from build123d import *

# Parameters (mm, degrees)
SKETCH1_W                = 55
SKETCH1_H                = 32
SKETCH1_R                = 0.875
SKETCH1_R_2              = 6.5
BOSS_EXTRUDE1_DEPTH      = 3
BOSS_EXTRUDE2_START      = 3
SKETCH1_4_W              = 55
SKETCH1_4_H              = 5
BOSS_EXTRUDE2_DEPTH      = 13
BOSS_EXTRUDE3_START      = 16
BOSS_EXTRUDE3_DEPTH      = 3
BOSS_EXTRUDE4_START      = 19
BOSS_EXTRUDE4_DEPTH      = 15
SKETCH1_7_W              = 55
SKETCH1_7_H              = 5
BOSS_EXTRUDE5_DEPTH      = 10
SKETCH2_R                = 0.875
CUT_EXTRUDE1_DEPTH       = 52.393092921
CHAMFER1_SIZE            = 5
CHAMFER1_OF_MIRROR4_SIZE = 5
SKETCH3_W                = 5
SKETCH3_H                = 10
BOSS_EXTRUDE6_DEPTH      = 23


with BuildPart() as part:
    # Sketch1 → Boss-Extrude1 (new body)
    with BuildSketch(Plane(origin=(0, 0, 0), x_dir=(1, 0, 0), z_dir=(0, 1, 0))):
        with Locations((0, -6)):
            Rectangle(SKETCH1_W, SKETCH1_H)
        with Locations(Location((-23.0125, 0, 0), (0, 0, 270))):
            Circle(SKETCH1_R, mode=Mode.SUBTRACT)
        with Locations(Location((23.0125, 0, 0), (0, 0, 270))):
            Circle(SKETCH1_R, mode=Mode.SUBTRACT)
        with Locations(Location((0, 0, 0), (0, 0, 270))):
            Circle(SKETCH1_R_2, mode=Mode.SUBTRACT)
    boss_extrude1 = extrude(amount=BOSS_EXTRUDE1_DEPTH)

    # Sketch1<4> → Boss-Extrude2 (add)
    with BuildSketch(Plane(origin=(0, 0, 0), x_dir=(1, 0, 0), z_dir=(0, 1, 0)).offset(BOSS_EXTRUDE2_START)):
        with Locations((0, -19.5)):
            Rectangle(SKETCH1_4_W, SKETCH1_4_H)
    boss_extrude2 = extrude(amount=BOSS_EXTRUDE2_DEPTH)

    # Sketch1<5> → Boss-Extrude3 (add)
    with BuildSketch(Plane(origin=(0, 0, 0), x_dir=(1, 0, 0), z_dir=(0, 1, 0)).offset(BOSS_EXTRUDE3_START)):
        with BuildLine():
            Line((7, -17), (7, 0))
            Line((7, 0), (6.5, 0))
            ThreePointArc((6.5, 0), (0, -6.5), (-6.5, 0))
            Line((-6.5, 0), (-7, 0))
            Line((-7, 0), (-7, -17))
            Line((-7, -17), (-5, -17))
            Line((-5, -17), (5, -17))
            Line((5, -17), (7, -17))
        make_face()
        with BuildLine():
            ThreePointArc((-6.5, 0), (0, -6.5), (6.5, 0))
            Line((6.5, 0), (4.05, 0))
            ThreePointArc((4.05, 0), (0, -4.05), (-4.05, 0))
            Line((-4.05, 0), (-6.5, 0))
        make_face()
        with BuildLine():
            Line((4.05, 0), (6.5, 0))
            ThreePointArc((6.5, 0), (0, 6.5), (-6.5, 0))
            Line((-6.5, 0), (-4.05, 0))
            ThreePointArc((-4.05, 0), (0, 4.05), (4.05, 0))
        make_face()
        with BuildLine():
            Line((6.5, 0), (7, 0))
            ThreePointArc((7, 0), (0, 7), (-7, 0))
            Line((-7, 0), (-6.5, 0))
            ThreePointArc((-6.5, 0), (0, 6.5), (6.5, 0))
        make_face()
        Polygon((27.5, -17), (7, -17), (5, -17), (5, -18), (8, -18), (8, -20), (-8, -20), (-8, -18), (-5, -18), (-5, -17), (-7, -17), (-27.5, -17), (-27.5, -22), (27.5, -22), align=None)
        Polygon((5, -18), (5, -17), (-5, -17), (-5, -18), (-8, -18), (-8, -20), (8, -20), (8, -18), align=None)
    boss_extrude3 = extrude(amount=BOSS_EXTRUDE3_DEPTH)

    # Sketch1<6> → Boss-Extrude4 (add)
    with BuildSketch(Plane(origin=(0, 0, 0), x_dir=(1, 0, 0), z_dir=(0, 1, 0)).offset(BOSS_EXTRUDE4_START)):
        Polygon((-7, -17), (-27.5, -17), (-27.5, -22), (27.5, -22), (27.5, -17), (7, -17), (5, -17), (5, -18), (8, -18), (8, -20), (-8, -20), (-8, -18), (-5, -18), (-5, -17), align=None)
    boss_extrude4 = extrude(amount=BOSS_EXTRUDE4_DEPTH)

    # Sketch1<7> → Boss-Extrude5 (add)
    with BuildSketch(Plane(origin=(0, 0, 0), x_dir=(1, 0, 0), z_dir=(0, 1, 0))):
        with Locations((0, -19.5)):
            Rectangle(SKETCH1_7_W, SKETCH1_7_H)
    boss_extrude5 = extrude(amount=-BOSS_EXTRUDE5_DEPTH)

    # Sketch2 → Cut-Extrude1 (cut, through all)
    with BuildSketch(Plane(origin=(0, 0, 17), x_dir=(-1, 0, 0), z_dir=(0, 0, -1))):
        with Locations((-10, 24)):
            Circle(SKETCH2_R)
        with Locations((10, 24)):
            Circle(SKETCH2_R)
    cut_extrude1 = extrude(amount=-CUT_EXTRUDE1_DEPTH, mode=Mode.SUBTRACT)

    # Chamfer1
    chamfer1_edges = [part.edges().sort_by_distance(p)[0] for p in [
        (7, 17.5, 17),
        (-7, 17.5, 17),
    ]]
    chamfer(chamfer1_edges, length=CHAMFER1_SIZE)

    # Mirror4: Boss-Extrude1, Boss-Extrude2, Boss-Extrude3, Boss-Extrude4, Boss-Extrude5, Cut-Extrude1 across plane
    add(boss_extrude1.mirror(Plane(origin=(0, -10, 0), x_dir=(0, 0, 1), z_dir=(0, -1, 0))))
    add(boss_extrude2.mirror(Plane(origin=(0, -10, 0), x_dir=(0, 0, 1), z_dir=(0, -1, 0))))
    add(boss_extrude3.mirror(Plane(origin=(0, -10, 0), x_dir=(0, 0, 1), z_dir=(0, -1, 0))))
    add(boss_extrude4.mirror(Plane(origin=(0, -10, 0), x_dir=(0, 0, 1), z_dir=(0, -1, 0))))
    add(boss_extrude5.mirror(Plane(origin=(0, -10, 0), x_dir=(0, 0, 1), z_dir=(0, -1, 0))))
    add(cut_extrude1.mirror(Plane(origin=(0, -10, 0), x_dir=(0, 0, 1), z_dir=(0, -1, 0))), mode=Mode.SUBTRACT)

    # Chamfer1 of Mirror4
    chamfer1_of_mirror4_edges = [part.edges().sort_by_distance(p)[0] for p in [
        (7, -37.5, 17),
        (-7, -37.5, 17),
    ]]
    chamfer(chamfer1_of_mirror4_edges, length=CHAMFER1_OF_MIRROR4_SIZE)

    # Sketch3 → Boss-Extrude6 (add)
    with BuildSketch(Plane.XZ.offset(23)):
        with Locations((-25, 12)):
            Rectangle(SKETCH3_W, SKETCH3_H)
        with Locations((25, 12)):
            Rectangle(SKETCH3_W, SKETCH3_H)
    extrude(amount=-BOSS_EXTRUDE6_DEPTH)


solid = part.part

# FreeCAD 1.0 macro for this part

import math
import FreeCAD as App
import Part
import Sketcher


def edges_at(feature, points):
    """Names of the edges that pass closest to the given points."""
    edges = feature.Shape.Edges
    near = lambda p: min(range(len(edges)), key=lambda i: edges[i].distToShape(Part.Vertex(*p))[0])
    return sorted({f"Edge{near(p) + 1}" for p in points})


def add_polygon(sketch, points):
    """Adds a closed chain of lines whose ends are joined by coincident constraints."""
    first, n = sketch.GeometryCount, len(points)
    for a, b in zip(points, points[1:] + points[:1]):
        sketch.addGeometry(Part.LineSegment(App.Vector(*a, 0), App.Vector(*b, 0)), False)
    for i in range(n):
        sketch.addConstraint(Sketcher.Constraint("Coincident", first + i, 2, first + (i + 1) % n, 1))

doc = App.newDocument("Part")
body = doc.addObject("PartDesign::Body", "Body")

sketch1 = body.newObject("Sketcher::SketchObject", "Sketch")
sketch1.AttachmentSupport = (doc.getObject("XZ_Plane"), [""])
sketch1.MapMode = "FlatFace"
add_polygon(sketch1, [(-27.5, -10), (-27.5, 22), (27.5, 22), (27.5, -10)])
sketch1.addGeometry(Part.Circle(App.Vector(-23.0125, 0, 0), App.Vector(0, 0, 1), 0.875), False)
sketch1.addGeometry(Part.Circle(App.Vector(0, 0, 0), App.Vector(0, 0, 1), 6.5), False)
sketch1.addGeometry(Part.Circle(App.Vector(23.0125, 0, 0), App.Vector(0, 0, 1), 0.875), False)
sketch1.addConstraint([
    Sketcher.Constraint("Vertical", 0),
    Sketcher.Constraint("Horizontal", 1),
    Sketcher.Constraint("Vertical", 2),
    Sketcher.Constraint("Horizontal", 3),
    Sketcher.Constraint("Coincident", 5, 3, -1, 1),
    Sketcher.Constraint("Equal", 4, 6),
    Sketcher.Constraint("Symmetric", 4, 3, 6, 3, -1, 1),
    Sketcher.Constraint("PointOnObject", 4, 3, -1),
    Sketcher.Constraint("Diameter", 5, 13.0),
    Sketcher.Constraint("Diameter", 4, 1.75),
    Sketcher.Constraint("DistanceX", 1, 1, 1, 2, 55.0),
    Sketcher.Constraint("DistanceY", 0, 1, 0, 2, 32.0),
    Sketcher.Constraint("DistanceY", -1, 1, 0, 2, 22.0),
    Sketcher.Constraint("DistanceX", 0, 2, -1, 1, 27.5),
    Sketcher.Constraint("DistanceX", 4, 3, 6, 3, 46.025),
])
pad1 = body.newObject("PartDesign::Pad", "Pad")
pad1.Profile = sketch1
pad1.Length = 3
pad1.Reversed = True

sketch2 = body.newObject("Sketcher::SketchObject", "Sketch001")
sketch2.AttachmentSupport = (doc.getObject("XZ_Plane"), [""])
sketch2.MapMode = "FlatFace"
sketch2.AttachmentOffset = App.Placement(App.Vector(0, 0, -3), App.Rotation())
add_polygon(sketch2, [(-27.5, 17), (-27.5, 22), (27.5, 22), (27.5, 17)])
sketch2.addConstraint([
    Sketcher.Constraint("Vertical", 0),
    Sketcher.Constraint("Horizontal", 1),
    Sketcher.Constraint("Vertical", 2),
    Sketcher.Constraint("Horizontal", 3),
    Sketcher.Constraint("DistanceX", 1, 1, 1, 2, 55.0),
    Sketcher.Constraint("DistanceY", 0, 1, 0, 2, 5.0),
    Sketcher.Constraint("DistanceY", -1, 1, 0, 2, 22.0),
    Sketcher.Constraint("DistanceX", 0, 2, -1, 1, 27.5),
])
pad2 = body.newObject("PartDesign::Pad", "Pad001")
pad2.Profile = sketch2
pad2.Length = 13
pad2.Reversed = True

sketch3 = body.newObject("Sketcher::SketchObject", "Sketch002")
sketch3.AttachmentSupport = (doc.getObject("XZ_Plane"), [""])
sketch3.MapMode = "FlatFace"
sketch3.AttachmentOffset = App.Placement(App.Vector(0, 0, -16), App.Rotation())
sketch3.addGeometry([
    Part.LineSegment(App.Vector(7, 17, 0), App.Vector(7, 0, 0)),
    Part.ArcOfCircle(Part.Circle(App.Vector(0, 0, 0), App.Vector(0, 0, 1), 7), math.radians(180), math.radians(360)),
    Part.LineSegment(App.Vector(-7, 0, 0), App.Vector(-7, 17, 0)),
    Part.LineSegment(App.Vector(-7, 17, 0), App.Vector(-27.5, 17, 0)),
    Part.LineSegment(App.Vector(-27.5, 17, 0), App.Vector(-27.5, 22, 0)),
    Part.LineSegment(App.Vector(-27.5, 22, 0), App.Vector(27.5, 22, 0)),
    Part.LineSegment(App.Vector(27.5, 22, 0), App.Vector(27.5, 17, 0)),
    Part.LineSegment(App.Vector(27.5, 17, 0), App.Vector(7, 17, 0)),
    Part.Circle(App.Vector(0, 0, 0), App.Vector(0, 0, 1), 4.05),
], False)
sketch3.addConstraint([
    Sketcher.Constraint("Tangent", 0, 2, 1, 2),
    Sketcher.Constraint("Tangent", 1, 1, 2, 1),
    Sketcher.Constraint("Coincident", 2, 2, 3, 1),
    Sketcher.Constraint("Coincident", 3, 2, 4, 1),
    Sketcher.Constraint("Coincident", 4, 2, 5, 1),
    Sketcher.Constraint("Coincident", 5, 2, 6, 1),
    Sketcher.Constraint("Coincident", 6, 2, 7, 1),
    Sketcher.Constraint("Coincident", 7, 2, 0, 1),
    Sketcher.Constraint("Vertical", 0),
    Sketcher.Constraint("Vertical", 2),
    Sketcher.Constraint("Horizontal", 3),
    Sketcher.Constraint("Vertical", 4),
    Sketcher.Constraint("Horizontal", 5),
    Sketcher.Constraint("Vertical", 6),
    Sketcher.Constraint("Horizontal", 7),
    Sketcher.Constraint("Coincident", 1, 3, -1, 1),
    Sketcher.Constraint("Coincident", 8, 3, -1, 1),
    Sketcher.Constraint("Symmetric", 3, 2, 6, 2, -2),
    Sketcher.Constraint("Radius", 1, 7.0),
    Sketcher.Constraint("Diameter", 8, 8.1),
    Sketcher.Constraint("DistanceX", 5, 1, 5, 2, 55.0),
    Sketcher.Constraint("DistanceY", 0, 2, 0, 1, 17.0),
    Sketcher.Constraint("DistanceY", 4, 1, 4, 2, 5.0),
])
pad3 = body.newObject("PartDesign::Pad", "Pad002")
pad3.Profile = sketch3
pad3.Length = 3
pad3.Reversed = True

sketch4 = body.newObject("Sketcher::SketchObject", "Sketch003")
sketch4.AttachmentSupport = (doc.getObject("XZ_Plane"), [""])
sketch4.MapMode = "FlatFace"
sketch4.AttachmentOffset = App.Placement(App.Vector(0, 0, -19), App.Rotation())
add_polygon(sketch4, [(-27.5, 17), (-27.5, 22), (27.5, 22), (27.5, 17), (5, 17), (5, 18), (8, 18), (8, 20), (-8, 20), (-8, 18), (-5, 18), (-5, 17)])
sketch4.addConstraint([
    Sketcher.Constraint("Vertical", 0),
    Sketcher.Constraint("Horizontal", 1),
    Sketcher.Constraint("Vertical", 2),
    Sketcher.Constraint("Horizontal", 3),
    Sketcher.Constraint("Vertical", 4),
    Sketcher.Constraint("Horizontal", 5),
    Sketcher.Constraint("Vertical", 6),
    Sketcher.Constraint("Horizontal", 7),
    Sketcher.Constraint("Vertical", 8),
    Sketcher.Constraint("Horizontal", 9),
    Sketcher.Constraint("Vertical", 10),
    Sketcher.Constraint("Horizontal", 11),
    Sketcher.Constraint("Symmetric", 5, 2, 8, 2, -2),
    Sketcher.Constraint("Symmetric", 3, 2, 10, 2, -2),
    Sketcher.Constraint("Equal", 3, 11),
    Sketcher.Constraint("DistanceX", 1, 1, 1, 2, 55.0),
    Sketcher.Constraint("DistanceX", 5, 1, 5, 2, 3.0),
    Sketcher.Constraint("DistanceX", 7, 2, 7, 1, 16.0),
    Sketcher.Constraint("DistanceY", 0, 1, 0, 2, 5.0),
    Sketcher.Constraint("DistanceY", 4, 1, 4, 2, 1.0),
    Sketcher.Constraint("DistanceY", 6, 1, 6, 2, 2.0),
    Sketcher.Constraint("DistanceY", -1, 1, 0, 2, 22.0),
])
pad4 = body.newObject("PartDesign::Pad", "Pad003")
pad4.Profile = sketch4
pad4.Length = 15
pad4.Reversed = True

sketch5 = body.newObject("Sketcher::SketchObject", "Sketch004")
sketch5.AttachmentSupport = (doc.getObject("XZ_Plane"), [""])
sketch5.MapMode = "FlatFace"
add_polygon(sketch5, [(-27.5, 17), (-27.5, 22), (27.5, 22), (27.5, 17)])
sketch5.addConstraint([
    Sketcher.Constraint("Vertical", 0),
    Sketcher.Constraint("Horizontal", 1),
    Sketcher.Constraint("Vertical", 2),
    Sketcher.Constraint("Horizontal", 3),
    Sketcher.Constraint("DistanceX", 1, 1, 1, 2, 55.0),
    Sketcher.Constraint("DistanceY", 0, 1, 0, 2, 5.0),
    Sketcher.Constraint("DistanceY", -1, 1, 0, 2, 22.0),
    Sketcher.Constraint("DistanceX", 0, 2, -1, 1, 27.5),
])
pad5 = body.newObject("PartDesign::Pad", "Pad004")
pad5.Profile = sketch5
pad5.Length = 10

sketch6 = body.newObject("Sketcher::SketchObject", "Sketch005")
sketch6.AttachmentSupport = (doc.getObject("XY_Plane"), [""])
sketch6.MapMode = "FlatFace"
sketch6.AttachmentOffset = App.Placement(App.Vector(0, 0, 17), App.Rotation())
sketch6.addGeometry([
    Part.Circle(App.Vector(10, 24, 0), App.Vector(0, 0, 1), 0.875),
    Part.Circle(App.Vector(-10, 24, 0), App.Vector(0, 0, 1), 0.875),
], False)
sketch6.addConstraint([
    Sketcher.Constraint("Equal", 0, 1),
    Sketcher.Constraint("Symmetric", 0, 3, 1, 3, -2),
    Sketcher.Constraint("Diameter", 0, 1.75),
    Sketcher.Constraint("DistanceX", -1, 1, 0, 3, 10.0),
    Sketcher.Constraint("DistanceY", -1, 1, 0, 3, 24.0),
])
pocket1 = body.newObject("PartDesign::Pocket", "Pocket")
pocket1.Profile = sketch6
pocket1.Type = "ThroughAll"
pocket1.Reversed = True
doc.recompute()

chamfer = body.newObject("PartDesign::Chamfer", "Chamfer")
chamfer.Base = (pocket1, edges_at(pocket1, [(7, 17.5, 17), (-7, 17.5, 17)]))
chamfer.Size = 5
doc.recompute()

datumplane = body.newObject("PartDesign::Plane", "DatumPlane")
datumplane.AttachmentSupport = (doc.getObject("XZ_Plane"), [""])
datumplane.MapMode = "FlatFace"
datumplane.AttachmentOffset = App.Placement(App.Vector(0, 0, 10), App.Rotation())
mirrored = body.newObject("PartDesign::Mirrored", "Mirrored")
mirrored.Originals = [pad1, pad2, pad3, pad4, pad5, pocket1]
mirrored.MirrorPlane = (datumplane, [""])
body.Tip = mirrored
doc.recompute()

chamfer2 = body.newObject("PartDesign::Chamfer", "Chamfer001")
chamfer2.Base = (mirrored, edges_at(mirrored, [(7, -37.5, 17), (-7, -37.5, 17)]))
chamfer2.Size = 5

sketch7 = body.newObject("Sketcher::SketchObject", "Sketch006")
sketch7.AttachmentSupport = (doc.getObject("XZ_Plane"), [""])
sketch7.MapMode = "FlatFace"
sketch7.AttachmentOffset = App.Placement(App.Vector(0, 0, 23), App.Rotation())
add_polygon(sketch7, [(-27.5, 17), (-27.5, 7), (-22.5, 7), (-22.5, 17)])
add_polygon(sketch7, [(22.5, 17), (22.5, 7), (27.5, 7), (27.5, 17)])
sketch7.addConstraint([
    Sketcher.Constraint("Vertical", 0),
    Sketcher.Constraint("Horizontal", 1),
    Sketcher.Constraint("Vertical", 2),
    Sketcher.Constraint("Horizontal", 3),
    Sketcher.Constraint("Vertical", 4),
    Sketcher.Constraint("Horizontal", 5),
    Sketcher.Constraint("Vertical", 6),
    Sketcher.Constraint("Horizontal", 7),
    Sketcher.Constraint("Symmetric", 1, 2, 4, 2, -2),
    Sketcher.Constraint("Symmetric", 3, 2, 6, 2, -2),
    Sketcher.Constraint("DistanceX", 1, 1, 1, 2, 5.0),
    Sketcher.Constraint("DistanceY", 0, 2, 0, 1, 10.0),
    Sketcher.Constraint("DistanceY", -1, 1, 0, 2, 7.0),
    Sketcher.Constraint("DistanceX", 1, 2, 4, 2, 45.0),
])
pad6 = body.newObject("PartDesign::Pad", "Pad005")
pad6.Profile = sketch7
pad6.Length = 23
pad6.Reversed = True

doc.recompute()
